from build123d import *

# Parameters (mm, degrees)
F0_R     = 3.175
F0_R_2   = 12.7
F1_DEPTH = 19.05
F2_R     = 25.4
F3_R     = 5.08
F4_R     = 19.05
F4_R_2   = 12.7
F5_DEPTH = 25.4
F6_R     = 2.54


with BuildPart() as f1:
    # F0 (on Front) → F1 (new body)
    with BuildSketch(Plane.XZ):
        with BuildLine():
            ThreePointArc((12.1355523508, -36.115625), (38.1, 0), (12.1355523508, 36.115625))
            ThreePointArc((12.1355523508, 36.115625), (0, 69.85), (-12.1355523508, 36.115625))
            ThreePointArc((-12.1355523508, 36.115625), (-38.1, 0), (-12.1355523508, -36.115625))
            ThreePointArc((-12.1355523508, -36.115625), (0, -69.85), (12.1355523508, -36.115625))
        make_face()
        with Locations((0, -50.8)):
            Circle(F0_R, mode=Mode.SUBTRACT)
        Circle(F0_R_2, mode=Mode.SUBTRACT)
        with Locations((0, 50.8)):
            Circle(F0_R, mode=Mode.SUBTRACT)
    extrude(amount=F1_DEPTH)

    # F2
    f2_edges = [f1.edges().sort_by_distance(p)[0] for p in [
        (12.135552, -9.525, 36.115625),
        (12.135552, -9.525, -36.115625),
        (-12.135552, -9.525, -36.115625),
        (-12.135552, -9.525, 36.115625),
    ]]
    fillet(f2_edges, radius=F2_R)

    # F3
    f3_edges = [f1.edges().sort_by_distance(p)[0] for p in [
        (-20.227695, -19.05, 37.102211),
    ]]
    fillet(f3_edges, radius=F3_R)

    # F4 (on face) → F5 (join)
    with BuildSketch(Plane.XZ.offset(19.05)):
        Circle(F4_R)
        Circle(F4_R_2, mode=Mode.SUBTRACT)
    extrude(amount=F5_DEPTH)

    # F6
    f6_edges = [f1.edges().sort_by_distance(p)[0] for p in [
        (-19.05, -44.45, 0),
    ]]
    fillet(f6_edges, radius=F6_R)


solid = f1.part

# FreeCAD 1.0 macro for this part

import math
import FreeCAD as App
import Part
import Sketcher

V = App.Vector
Q = App.Units.Quantity


def edges_at(feature, points):
    """Names of the edges that pass closest to the given points."""
    edges = feature.Shape.Edges
    near = lambda p: min(range(len(edges)), key=lambda i: edges[i].distToShape(Part.Vertex(*p))[0])
    return sorted({f"Edge{near(p) + 1}" for p in points})

doc = App.newDocument("Part")
body = doc.addObject("PartDesign::Body", "Body")

sketch1 = doc.addObject("Sketcher::SketchObject", "Sketch")
body.addObject(sketch1)
sketch1.AttachmentSupport = (doc.XZ_Plane, [""])
sketch1.MapMode = "FlatFace"
sketch1.addGeometry(Part.ArcOfCircle(Part.Circle(V(0, 0, 0), V(0, 0, 1), 38.1), math.radians(-71.42665), math.radians(71.42665)), False)
sketch1.addGeometry(Part.ArcOfCircle(Part.Circle(V(0, 50.8, 0), V(0, 0, 1), 19.05), math.radians(-50.428781), math.radians(230.428781)), False)
sketch1.addGeometry(Part.ArcOfCircle(Part.Circle(V(0, 0, 0), V(0, 0, 1), 38.1), math.radians(108.57335), math.radians(251.42665)), False)
sketch1.addGeometry(Part.ArcOfCircle(Part.Circle(V(0, -50.8, 0), V(0, 0, 1), 19.05), math.radians(129.571219), math.radians(410.428781)), False)
sketch1.addGeometry(Part.Circle(V(0, -50.8, 0), V(0, 0, 1), 3.175), False)
sketch1.addGeometry(Part.Circle(V(0, 0, 0), V(0, 0, 1), 12.7), False)
sketch1.addGeometry(Part.Circle(V(0, 50.8, 0), V(0, 0, 1), 3.175), False)
sketch1.addConstraint(Sketcher.Constraint("Coincident", 0, 2, 1, 1))
sketch1.addConstraint(Sketcher.Constraint("Coincident", 1, 2, 2, 1))
sketch1.addConstraint(Sketcher.Constraint("Coincident", 2, 2, 3, 1))
sketch1.addConstraint(Sketcher.Constraint("Coincident", 3, 2, 0, 1))
sketch1.addConstraint(Sketcher.Constraint("Coincident", 0, 3, -1, 1))
sketch1.addConstraint(Sketcher.Constraint("Coincident", 2, 3, -1, 1))
sketch1.addConstraint(Sketcher.Constraint("Coincident", 5, 3, -1, 1))
sketch1.addConstraint(Sketcher.Constraint("Coincident", 4, 3, 3, 3))
sketch1.addConstraint(Sketcher.Constraint("Coincident", 6, 3, 1, 3))
sketch1.addConstraint(Sketcher.Constraint("Equal", 0, 2))
sketch1.addConstraint(Sketcher.Constraint("Equal", 1, 3))
sketch1.addConstraint(Sketcher.Constraint("Equal", 4, 6))
sketch1.addConstraint(Sketcher.Constraint("Symmetric", 1, 3, 3, 3, -1, 1))
sketch1.addConstraint(Sketcher.Constraint("PointOnObject", 1, 3, -2))
sketch1.addConstraint(Sketcher.Constraint("Diameter", 5, Q("1 in")))
sketch1.addConstraint(Sketcher.Constraint("Radius", 0, Q("1.5 in")))
sketch1.addConstraint(Sketcher.Constraint("Diameter", 4, Q("0.25 in")))
sketch1.addConstraint(Sketcher.Constraint("Radius", 1, Q("0.75 in")))
sketch1.addConstraint(Sketcher.Constraint("DistanceY", -1, 1, 1, 3, Q("2 in")))
pad1 = doc.addObject("PartDesign::Pad", "Pad")
body.addObject(pad1)
pad1.Profile = sketch1
pad1.Length = Q("0.75 in")
doc.recompute()

fillet = doc.addObject("PartDesign::Fillet", "Fillet")
body.addObject(fillet)
fillet.Base = (pad1, edges_at(pad1, [
    (12.136, -9.525, 36.116),
    (12.136, -9.525, -36.116),
    (-12.136, -9.525, -36.116),
    (-12.136, -9.525, 36.116),
]))
fillet.Radius = Q("1 in")
doc.recompute()

fillet2 = doc.addObject("PartDesign::Fillet", "Fillet001")
body.addObject(fillet2)
fillet2.Base = (fillet, edges_at(fillet, [(-20.228, -19.05, 37.102)]))
fillet2.Radius = Q("0.2 in")

sketch2 = doc.addObject("Sketcher::SketchObject", "Sketch001")
body.addObject(sketch2)
sketch2.AttachmentSupport = (doc.XZ_Plane, [""])
sketch2.MapMode = "FlatFace"
sketch2.AttachmentOffset = App.Placement(V(0, 0, 0.75 * 25.4), App.Rotation())
sketch2.addGeometry(Part.Circle(V(0, 0, 0), V(0, 0, 1), 19.05), False)
sketch2.addGeometry(Part.Circle(V(0, 0, 0), V(0, 0, 1), 12.7), False)
sketch2.addConstraint(Sketcher.Constraint("Coincident", 0, 3, -1, 1))
sketch2.addConstraint(Sketcher.Constraint("Coincident", 1, 3, -1, 1))
sketch2.addConstraint(Sketcher.Constraint("Diameter", 1, Q("1 in")))
sketch2.addConstraint(Sketcher.Constraint("Diameter", 0, Q("1.5 in")))
pad2 = doc.addObject("PartDesign::Pad", "Pad001")
body.addObject(pad2)
pad2.Profile = sketch2
pad2.Length = Q("1 in")
doc.recompute()

fillet3 = doc.addObject("PartDesign::Fillet", "Fillet002")
body.addObject(fillet3)
fillet3.Base = (pad2, edges_at(pad2, [(-19.05, -44.45, 0)]))
fillet3.Radius = Q("0.1 in")

doc.recompute()
